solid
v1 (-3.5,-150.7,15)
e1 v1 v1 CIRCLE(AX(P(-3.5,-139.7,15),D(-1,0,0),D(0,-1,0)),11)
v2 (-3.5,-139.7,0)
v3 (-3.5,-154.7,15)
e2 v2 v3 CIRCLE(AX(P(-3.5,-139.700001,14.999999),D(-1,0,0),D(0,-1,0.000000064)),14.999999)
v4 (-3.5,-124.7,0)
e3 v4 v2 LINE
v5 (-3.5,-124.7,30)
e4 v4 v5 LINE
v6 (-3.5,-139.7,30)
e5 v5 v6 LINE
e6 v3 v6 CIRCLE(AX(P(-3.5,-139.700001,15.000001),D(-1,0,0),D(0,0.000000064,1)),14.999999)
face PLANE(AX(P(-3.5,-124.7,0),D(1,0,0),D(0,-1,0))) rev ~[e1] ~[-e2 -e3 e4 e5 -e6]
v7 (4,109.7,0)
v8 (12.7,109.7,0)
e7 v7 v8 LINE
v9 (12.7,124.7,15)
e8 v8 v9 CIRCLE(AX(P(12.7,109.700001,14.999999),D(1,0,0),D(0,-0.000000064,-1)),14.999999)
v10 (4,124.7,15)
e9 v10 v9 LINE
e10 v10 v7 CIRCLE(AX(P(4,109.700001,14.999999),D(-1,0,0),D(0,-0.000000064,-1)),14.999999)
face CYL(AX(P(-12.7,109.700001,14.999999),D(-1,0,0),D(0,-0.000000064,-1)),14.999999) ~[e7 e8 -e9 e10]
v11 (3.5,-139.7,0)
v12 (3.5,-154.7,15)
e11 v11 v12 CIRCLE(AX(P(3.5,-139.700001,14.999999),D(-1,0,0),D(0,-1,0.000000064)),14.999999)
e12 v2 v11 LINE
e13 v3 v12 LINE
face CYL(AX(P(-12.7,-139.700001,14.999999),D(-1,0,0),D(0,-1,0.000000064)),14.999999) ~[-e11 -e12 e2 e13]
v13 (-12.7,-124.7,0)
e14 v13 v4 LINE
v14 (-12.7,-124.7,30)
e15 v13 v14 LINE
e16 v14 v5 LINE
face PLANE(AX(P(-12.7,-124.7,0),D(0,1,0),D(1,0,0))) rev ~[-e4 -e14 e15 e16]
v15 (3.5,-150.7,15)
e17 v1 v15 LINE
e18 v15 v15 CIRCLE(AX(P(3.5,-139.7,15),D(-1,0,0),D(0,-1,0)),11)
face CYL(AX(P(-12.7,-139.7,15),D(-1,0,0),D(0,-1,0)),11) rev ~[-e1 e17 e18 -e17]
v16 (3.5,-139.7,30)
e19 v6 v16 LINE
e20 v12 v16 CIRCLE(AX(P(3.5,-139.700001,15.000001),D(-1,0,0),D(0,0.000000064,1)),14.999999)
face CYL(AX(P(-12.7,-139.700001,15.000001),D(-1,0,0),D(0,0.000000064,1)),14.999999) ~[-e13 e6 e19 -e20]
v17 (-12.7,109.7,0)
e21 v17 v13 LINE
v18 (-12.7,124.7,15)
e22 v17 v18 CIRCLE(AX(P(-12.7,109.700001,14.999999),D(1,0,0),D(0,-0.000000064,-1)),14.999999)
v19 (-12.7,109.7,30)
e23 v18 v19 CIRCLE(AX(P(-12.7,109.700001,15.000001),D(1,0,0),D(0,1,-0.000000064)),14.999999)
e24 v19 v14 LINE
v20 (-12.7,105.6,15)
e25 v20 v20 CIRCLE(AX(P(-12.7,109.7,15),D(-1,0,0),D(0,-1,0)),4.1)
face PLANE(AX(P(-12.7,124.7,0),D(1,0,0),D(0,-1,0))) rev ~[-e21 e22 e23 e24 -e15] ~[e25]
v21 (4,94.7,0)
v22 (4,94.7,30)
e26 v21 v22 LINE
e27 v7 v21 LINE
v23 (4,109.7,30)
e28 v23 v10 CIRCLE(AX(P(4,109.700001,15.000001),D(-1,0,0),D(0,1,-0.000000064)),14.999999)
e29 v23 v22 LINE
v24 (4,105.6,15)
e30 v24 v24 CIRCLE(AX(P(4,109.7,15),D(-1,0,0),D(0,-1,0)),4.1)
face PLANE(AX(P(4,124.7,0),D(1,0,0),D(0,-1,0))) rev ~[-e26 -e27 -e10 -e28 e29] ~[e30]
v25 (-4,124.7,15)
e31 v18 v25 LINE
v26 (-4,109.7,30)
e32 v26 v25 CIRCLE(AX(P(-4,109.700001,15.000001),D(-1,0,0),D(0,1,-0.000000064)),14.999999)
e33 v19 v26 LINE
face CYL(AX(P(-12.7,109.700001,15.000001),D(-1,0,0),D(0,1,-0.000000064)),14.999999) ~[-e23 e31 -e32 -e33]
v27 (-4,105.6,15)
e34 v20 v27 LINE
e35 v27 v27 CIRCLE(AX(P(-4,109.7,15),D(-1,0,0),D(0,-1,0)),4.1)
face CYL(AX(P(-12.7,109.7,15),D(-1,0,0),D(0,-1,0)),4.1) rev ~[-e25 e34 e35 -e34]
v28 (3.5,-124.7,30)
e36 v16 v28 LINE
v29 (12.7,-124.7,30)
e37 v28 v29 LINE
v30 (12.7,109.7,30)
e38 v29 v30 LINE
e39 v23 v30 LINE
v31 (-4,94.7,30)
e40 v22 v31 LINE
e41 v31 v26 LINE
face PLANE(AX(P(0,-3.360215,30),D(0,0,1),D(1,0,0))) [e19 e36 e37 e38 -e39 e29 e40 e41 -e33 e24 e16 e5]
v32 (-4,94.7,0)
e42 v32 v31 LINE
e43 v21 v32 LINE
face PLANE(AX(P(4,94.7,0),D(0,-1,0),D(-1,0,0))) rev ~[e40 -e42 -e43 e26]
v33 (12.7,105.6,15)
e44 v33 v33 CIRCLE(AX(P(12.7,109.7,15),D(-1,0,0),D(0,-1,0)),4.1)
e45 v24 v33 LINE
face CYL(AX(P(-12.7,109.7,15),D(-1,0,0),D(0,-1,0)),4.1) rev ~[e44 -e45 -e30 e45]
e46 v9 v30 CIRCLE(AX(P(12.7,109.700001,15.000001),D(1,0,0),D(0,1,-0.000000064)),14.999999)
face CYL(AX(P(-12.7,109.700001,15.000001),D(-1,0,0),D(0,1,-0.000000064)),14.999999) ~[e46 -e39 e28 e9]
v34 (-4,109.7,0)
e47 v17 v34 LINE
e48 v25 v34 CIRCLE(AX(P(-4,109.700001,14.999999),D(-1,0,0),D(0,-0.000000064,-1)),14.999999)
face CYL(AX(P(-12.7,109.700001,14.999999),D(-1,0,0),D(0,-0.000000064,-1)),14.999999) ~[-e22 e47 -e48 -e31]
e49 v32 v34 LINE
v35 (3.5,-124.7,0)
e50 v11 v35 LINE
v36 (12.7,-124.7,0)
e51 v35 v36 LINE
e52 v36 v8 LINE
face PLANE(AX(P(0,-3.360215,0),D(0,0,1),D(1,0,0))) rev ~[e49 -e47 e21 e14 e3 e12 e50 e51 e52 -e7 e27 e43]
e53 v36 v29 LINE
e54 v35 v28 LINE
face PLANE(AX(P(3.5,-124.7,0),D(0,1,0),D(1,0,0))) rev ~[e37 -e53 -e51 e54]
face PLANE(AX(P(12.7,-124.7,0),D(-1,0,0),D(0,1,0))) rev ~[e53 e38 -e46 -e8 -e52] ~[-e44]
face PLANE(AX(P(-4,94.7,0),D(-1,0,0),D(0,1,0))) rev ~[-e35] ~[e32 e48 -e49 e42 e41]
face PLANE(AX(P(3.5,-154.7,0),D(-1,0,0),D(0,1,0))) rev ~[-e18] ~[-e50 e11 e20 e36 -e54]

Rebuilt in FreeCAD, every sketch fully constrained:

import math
import FreeCAD as App
import Part
import Sketcher

V = App.Vector
Q = App.Units.Quantity

doc = App.newDocument("Part")
params = doc.addObject("Spreadsheet::Sheet", "Params")
for row, (alias, value) in enumerate([
    ("sketch1_width", "7 mm"),
    ("sketch1_width2", "8 mm"),
    ("sketch1_height", "30 mm"),
    ("sketch1_width3", "8.7 mm"),
    ("sketch1_height2", "249.4 mm"),
    ("pad1_length", "30 mm"),
    ("sketch2_diameter", "22 mm"),
    ("sketch2_radius", "14.999999 mm"),
    ("sketch2_diameter2", "8.2 mm"),
], start=1):
    params.set(f"A{row}", alias)
    params.set(f"B{row}", "=" + value)
    params.setAlias(f"B{row}", alias)

body = doc.addObject("PartDesign::Body", "Body")

# Sketch on XY plane
sketch1 = body.newObject("Sketcher::SketchObject", "Sketch")
sketch1.AttachmentSupport = (doc.getObject("XY_Plane"), [""])
sketch1.MapMode = "FlatFace"
sketch1.addGeometry([
    Part.LineSegment(V(-4, 125, 0), V(-13, 125, 0)),  # 0
    Part.LineSegment(V(-13, 125, 0), V(-13, -125, 0)),  # 1
    Part.LineSegment(V(-13, -125, 0), V(-4, -125, 0)),  # 2
    Part.LineSegment(V(-4, -125, 0), V(-4, -155, 0)),  # 3
    Part.LineSegment(V(-4, -155, 0), V(4, -155, 0)),  # 4
    Part.LineSegment(V(4, -155, 0), V(4, -125, 0)),  # 5
    Part.LineSegment(V(4, -125, 0), V(13, -125, 0)),  # 6
    Part.LineSegment(V(13, -125, 0), V(13, 125, 0)),  # 7
    Part.LineSegment(V(13, 125, 0), V(4, 125, 0)),  # 8
    Part.LineSegment(V(4, 125, 0), V(4, 95, 0)),  # 9
    Part.LineSegment(V(4, 95, 0), V(-4, 95, 0)),  # 10
    Part.LineSegment(V(-4, 95, 0), V(-4, 125, 0)),  # 11
], False)
sketch1.addConstraint([
    Sketcher.Constraint("Coincident", 0, 2, 1, 1),
    Sketcher.Constraint("Coincident", 1, 2, 2, 1),
    Sketcher.Constraint("Coincident", 2, 2, 3, 1),
    Sketcher.Constraint("Coincident", 3, 2, 4, 1),
    Sketcher.Constraint("Coincident", 4, 2, 5, 1),
    Sketcher.Constraint("Coincident", 5, 2, 6, 1),
    Sketcher.Constraint("Coincident", 6, 2, 7, 1),
    Sketcher.Constraint("Coincident", 7, 2, 8, 1),
    Sketcher.Constraint("Coincident", 8, 2, 9, 1),
    Sketcher.Constraint("Coincident", 9, 2, 10, 1),
    Sketcher.Constraint("Coincident", 10, 2, 11, 1),
    Sketcher.Constraint("Coincident", 11, 2, 0, 1),
    Sketcher.Constraint("Horizontal", 0),
    Sketcher.Constraint("Vertical", 1),
    Sketcher.Constraint("Horizontal", 2),
    Sketcher.Constraint("Vertical", 3),
    Sketcher.Constraint("Horizontal", 4),
    Sketcher.Constraint("Vertical", 5),
    Sketcher.Constraint("Horizontal", 6),
    Sketcher.Constraint("Vertical", 7),
    Sketcher.Constraint("Horizontal", 8),
    Sketcher.Constraint("Vertical", 9),
    Sketcher.Constraint("Horizontal", 10),
    Sketcher.Constraint("Vertical", 11),
    Sketcher.Constraint("Symmetric", 0, 2, 6, 2, -1, 1),
    Sketcher.Constraint("Symmetric", 2, 2, 5, 2, -2),
    Sketcher.Constraint("Symmetric", 8, 2, 11, 2, -2),
    Sketcher.Constraint("Equal", 5, 9),
    Sketcher.Constraint("DistanceX", 4, 1, 4, 2, Q("7 mm")),
    Sketcher.Constraint("DistanceX", 10, 2, 10, 1, Q("8 mm")),
    Sketcher.Constraint("DistanceY", 3, 2, 3, 1, Q("30 mm")),
    Sketcher.Constraint("DistanceX", 0, 2, 0, 1, Q("8.7 mm")),
    Sketcher.Constraint("DistanceY", 1, 2, 1, 1, Q("249.4 mm")),
])
sketch1.setExpression("Constraints[28]", "Params.sketch1_width")
sketch1.setExpression("Constraints[29]", "Params.sketch1_width2")
sketch1.setExpression("Constraints[30]", "Params.sketch1_height")
sketch1.setExpression("Constraints[31]", "Params.sketch1_width3")
sketch1.setExpression("Constraints[32]", "Params.sketch1_height2")
pad1 = body.newObject("PartDesign::Pad", "Pad")
pad1.Profile = sketch1
pad1.setExpression("Length", "Params.pad1_length")

# Sketch on YZ plane
sketch2 = body.newObject("Sketcher::SketchObject", "Sketch001")
sketch2.AttachmentSupport = (doc.getObject("YZ_Plane"), [""])
sketch2.MapMode = "FlatFace"
sketch2.AttachmentOffset = App.Placement(V(0, 0, -12.7), App.Rotation())
sketch2.addGeometry([
    Part.ArcOfCircle(Part.Circle(V(-139.7, 15, 0), V(0, 0, 1), 15), math.radians(90), math.radians(180)),  # 0
    Part.LineSegment(V(-154.7, 15, 0), V(-154.7, 30, 0)),  # 1
    Part.LineSegment(V(-154.7, 30, 0), V(-139.7, 30, 0)),  # 2
    Part.ArcOfCircle(Part.Circle(V(-139.7, 15, 0), V(0, 0, 1), 15), math.radians(180), math.radians(270)),  # 3
    Part.LineSegment(V(-139.7, 0, 0), V(-154.7, 0, 0)),  # 4
    Part.LineSegment(V(-154.7, 0, 0), V(-154.7, 15, 0)),  # 5
    Part.Circle(V(-139.7, 15, 0), V(0, 0, 1), 11),  # 6
    Part.Circle(V(109.7, 15, 0), V(0, 0, 1), 4.1),  # 7
    Part.ArcOfCircle(Part.Circle(V(109.7, 15, 0), V(0, 0, 1), 15), math.radians(0), math.radians(90)),  # 8
    Part.LineSegment(V(109.7, 30, 0), V(124.7, 30, 0)),  # 9
    Part.LineSegment(V(124.7, 30, 0), V(124.7, 15, 0)),  # 10
    Part.LineSegment(V(124.7, 0, 0), V(109.7, 0, 0)),  # 11
    Part.ArcOfCircle(Part.Circle(V(109.7, 15, 0), V(0, 0, 1), 15), math.radians(-90), math.radians(0)),  # 12
    Part.LineSegment(V(124.7, 15, 0), V(124.7, 0, 0)),  # 13
], False)
sketch2.addConstraint([
    Sketcher.Constraint("Tangent", 0, 2, 1, 1),
    Sketcher.Constraint("Coincident", 1, 2, 2, 1),
    Sketcher.Constraint("Tangent", 2, 2, 0, 1),
    Sketcher.Constraint("Tangent", 3, 2, 4, 1),
    Sketcher.Constraint("Coincident", 4, 2, 5, 1),
    Sketcher.Constraint("Tangent", 5, 2, 3, 1),
    Sketcher.Constraint("Tangent", 8, 2, 9, 1),
    Sketcher.Constraint("Coincident", 9, 2, 10, 1),
    Sketcher.Constraint("Tangent", 10, 2, 8, 1),
    Sketcher.Constraint("Tangent", 11, 2, 12, 1),
    Sketcher.Constraint("Tangent", 12, 2, 13, 1),
    Sketcher.Constraint("Coincident", 13, 2, 11, 1),
    Sketcher.Constraint("Vertical", 1),
    Sketcher.Constraint("Horizontal", 2),
    Sketcher.Constraint("Horizontal", 4),
    Sketcher.Constraint("Vertical", 5),
    Sketcher.Constraint("Horizontal", 9),
    Sketcher.Constraint("Vertical", 10),
    Sketcher.Constraint("Horizontal", 11),
    Sketcher.Constraint("Vertical", 13),
    Sketcher.Constraint("Coincident", 3, 3, 0, 3),
    Sketcher.Constraint("Coincident", 6, 3, 0, 3),
    Sketcher.Constraint("Coincident", 8, 3, 7, 3),
    Sketcher.Constraint("Coincident", 12, 3, 7, 3),
    Sketcher.Constraint("Equal", 0, 3),
    Sketcher.Constraint("Equal", 3, 8),
    Sketcher.Constraint("Equal", 8, 12),
    Sketcher.Constraint("PointOnObject", 3, 2, -1),
    Sketcher.Constraint("PointOnObject", 11, 2, -1),
    Sketcher.Constraint("Diameter", 6, Q("22 mm")),
    Sketcher.Constraint("Radius", 0, Q("14.999999 mm")),
    Sketcher.Constraint("Diameter", 7, Q("8.2 mm")),
    Sketcher.Constraint("DistanceX", 0, 3, -1, 1, Q("139.700001 mm")),
    Sketcher.Constraint("DistanceX", -1, 1, 7, 3, Q("109.7 mm")),
])
sketch2.setExpression("Constraints[29]", "Params.sketch2_diameter")
sketch2.setExpression("Constraints[30]", "Params.sketch2_radius")
sketch2.setExpression("Constraints[31]", "Params.sketch2_diameter2")
pocket1 = body.newObject("PartDesign::Pocket", "Pocket")
pocket1.Profile = sketch2
pocket1.Type = "ThroughAll"
pocket1.Reversed = True

doc.recompute()
